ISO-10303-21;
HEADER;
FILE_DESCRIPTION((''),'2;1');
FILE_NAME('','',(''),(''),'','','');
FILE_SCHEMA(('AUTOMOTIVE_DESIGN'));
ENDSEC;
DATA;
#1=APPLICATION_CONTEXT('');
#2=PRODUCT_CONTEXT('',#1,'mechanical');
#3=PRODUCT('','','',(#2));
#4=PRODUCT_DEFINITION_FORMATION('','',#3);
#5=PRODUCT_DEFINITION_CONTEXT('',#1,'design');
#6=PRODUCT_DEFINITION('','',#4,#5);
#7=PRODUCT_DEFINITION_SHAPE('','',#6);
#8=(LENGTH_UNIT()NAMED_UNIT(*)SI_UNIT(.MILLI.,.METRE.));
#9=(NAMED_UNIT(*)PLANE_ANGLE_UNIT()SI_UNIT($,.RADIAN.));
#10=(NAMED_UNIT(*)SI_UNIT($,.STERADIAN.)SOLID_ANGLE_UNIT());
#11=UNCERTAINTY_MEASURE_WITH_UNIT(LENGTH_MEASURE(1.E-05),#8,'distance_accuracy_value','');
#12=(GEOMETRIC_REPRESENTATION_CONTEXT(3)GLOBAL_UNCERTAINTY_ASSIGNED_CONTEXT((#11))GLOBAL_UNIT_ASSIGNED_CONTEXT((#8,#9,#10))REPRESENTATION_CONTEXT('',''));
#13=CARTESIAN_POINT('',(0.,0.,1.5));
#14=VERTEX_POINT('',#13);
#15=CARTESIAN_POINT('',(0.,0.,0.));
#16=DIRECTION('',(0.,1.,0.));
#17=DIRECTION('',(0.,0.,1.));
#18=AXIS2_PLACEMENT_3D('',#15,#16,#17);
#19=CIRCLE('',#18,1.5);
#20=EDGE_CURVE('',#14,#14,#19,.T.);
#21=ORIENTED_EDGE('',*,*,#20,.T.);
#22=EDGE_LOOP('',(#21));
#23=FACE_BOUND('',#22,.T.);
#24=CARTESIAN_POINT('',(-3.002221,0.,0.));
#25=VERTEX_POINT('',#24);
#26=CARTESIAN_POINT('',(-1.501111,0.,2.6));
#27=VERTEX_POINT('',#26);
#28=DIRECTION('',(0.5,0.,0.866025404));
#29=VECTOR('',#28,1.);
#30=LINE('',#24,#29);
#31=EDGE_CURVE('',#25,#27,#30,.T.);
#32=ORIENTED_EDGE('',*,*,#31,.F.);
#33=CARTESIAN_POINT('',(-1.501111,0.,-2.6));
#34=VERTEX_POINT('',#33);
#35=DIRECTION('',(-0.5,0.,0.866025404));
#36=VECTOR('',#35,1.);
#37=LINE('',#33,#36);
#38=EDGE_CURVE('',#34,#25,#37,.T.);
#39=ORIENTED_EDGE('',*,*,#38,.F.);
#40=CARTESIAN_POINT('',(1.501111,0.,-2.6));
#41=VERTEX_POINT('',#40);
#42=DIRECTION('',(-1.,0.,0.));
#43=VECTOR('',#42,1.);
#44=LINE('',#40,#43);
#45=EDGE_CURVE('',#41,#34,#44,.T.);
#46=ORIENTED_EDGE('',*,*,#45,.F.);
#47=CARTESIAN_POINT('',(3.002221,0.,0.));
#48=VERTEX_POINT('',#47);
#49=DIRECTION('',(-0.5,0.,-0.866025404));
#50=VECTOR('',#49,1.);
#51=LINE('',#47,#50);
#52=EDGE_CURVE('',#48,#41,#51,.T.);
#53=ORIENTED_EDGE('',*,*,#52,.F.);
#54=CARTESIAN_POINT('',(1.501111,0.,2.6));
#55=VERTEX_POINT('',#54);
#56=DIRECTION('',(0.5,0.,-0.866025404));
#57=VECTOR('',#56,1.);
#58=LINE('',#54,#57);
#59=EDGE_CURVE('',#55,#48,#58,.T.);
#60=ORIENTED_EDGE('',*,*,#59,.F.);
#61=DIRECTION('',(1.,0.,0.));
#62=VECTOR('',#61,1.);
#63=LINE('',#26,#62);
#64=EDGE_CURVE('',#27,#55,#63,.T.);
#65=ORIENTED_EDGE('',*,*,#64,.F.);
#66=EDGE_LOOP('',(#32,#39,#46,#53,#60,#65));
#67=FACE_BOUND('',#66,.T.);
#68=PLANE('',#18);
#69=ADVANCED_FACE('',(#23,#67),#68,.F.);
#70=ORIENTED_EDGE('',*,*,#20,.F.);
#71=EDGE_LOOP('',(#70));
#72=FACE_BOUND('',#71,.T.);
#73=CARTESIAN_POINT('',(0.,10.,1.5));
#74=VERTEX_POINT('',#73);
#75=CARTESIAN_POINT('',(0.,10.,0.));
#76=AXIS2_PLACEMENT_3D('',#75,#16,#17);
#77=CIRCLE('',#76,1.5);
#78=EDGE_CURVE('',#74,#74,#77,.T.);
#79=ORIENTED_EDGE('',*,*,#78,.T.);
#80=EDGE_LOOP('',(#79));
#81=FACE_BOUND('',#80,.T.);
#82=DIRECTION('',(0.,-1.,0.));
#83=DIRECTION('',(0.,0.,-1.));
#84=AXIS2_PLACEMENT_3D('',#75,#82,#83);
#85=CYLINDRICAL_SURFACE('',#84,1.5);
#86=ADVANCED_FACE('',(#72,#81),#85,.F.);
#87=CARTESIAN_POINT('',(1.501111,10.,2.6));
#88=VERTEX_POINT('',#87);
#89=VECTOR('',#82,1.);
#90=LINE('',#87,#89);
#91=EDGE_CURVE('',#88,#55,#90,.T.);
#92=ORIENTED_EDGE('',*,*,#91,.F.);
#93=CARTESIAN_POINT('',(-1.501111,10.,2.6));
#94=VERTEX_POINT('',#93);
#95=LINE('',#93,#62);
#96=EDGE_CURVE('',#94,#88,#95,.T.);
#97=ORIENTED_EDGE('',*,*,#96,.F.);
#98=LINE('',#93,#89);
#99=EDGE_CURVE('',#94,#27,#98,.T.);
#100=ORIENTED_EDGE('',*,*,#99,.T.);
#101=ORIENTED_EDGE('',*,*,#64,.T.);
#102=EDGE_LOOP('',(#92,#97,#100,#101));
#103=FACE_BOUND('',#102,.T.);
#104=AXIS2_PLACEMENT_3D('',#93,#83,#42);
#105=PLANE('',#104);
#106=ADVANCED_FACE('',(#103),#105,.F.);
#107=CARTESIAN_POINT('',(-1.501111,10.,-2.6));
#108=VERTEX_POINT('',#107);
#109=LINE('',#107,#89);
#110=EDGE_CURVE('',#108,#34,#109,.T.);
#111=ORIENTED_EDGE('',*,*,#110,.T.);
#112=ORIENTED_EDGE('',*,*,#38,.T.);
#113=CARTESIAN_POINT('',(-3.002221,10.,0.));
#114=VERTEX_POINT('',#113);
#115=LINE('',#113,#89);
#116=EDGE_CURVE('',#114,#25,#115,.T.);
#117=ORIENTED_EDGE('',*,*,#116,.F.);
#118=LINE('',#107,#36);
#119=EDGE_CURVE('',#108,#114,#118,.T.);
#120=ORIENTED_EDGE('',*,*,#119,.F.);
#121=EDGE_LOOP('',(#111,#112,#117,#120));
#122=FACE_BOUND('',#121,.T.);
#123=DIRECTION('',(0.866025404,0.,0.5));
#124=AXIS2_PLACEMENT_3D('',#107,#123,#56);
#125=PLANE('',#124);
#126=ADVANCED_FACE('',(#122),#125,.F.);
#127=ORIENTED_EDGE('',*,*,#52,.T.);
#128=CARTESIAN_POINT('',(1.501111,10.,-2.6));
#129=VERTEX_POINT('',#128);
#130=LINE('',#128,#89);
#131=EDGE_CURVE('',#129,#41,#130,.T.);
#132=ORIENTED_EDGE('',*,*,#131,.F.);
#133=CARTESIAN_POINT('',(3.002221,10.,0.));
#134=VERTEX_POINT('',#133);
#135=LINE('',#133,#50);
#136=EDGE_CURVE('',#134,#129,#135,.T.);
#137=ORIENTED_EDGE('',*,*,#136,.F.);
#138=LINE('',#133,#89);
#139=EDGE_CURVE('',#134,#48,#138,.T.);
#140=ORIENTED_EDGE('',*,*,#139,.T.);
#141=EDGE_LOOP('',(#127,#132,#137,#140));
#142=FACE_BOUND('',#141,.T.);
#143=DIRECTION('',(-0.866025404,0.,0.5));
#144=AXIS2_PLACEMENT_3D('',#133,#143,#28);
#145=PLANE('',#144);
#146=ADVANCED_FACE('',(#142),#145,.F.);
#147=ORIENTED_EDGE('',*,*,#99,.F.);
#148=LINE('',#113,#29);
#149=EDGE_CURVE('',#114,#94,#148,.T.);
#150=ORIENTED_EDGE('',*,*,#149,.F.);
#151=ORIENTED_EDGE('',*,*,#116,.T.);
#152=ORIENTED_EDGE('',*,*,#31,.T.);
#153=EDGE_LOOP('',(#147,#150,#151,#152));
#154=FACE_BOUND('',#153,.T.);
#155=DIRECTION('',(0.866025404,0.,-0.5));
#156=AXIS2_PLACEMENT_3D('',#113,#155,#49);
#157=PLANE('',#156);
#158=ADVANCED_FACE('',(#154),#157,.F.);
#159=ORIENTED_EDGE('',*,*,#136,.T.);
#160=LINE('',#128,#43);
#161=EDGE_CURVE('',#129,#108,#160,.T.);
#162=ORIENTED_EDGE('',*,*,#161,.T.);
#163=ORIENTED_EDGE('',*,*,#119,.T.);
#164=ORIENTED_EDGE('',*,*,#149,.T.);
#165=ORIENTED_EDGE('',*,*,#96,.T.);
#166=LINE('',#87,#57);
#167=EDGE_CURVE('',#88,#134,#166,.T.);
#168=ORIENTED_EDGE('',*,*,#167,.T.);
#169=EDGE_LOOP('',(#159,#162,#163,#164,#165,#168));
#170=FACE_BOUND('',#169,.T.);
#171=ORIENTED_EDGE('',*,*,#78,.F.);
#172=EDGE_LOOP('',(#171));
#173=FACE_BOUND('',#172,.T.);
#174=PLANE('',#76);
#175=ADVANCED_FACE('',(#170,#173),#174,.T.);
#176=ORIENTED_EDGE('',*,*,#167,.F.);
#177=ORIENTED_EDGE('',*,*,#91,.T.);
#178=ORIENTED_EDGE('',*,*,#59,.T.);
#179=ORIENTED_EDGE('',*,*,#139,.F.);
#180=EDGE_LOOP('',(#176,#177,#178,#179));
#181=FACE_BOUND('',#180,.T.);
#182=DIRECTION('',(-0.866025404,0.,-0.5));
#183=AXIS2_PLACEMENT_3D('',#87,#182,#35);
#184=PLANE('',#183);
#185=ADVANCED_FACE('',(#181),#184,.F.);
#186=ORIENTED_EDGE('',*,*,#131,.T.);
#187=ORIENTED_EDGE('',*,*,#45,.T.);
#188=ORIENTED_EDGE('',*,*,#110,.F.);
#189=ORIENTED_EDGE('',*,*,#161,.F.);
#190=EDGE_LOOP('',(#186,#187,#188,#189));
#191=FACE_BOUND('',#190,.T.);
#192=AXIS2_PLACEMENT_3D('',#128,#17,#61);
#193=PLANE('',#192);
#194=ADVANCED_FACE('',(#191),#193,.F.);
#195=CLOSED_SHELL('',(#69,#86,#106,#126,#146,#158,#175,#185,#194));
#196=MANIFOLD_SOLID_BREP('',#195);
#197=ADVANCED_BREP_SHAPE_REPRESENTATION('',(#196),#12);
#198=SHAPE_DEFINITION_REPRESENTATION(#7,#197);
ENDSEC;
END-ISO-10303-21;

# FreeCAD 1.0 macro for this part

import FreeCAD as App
import Part
import Sketcher

V = App.Vector
Q = App.Units.Quantity


def add_polygon(sketch, points):
    """Adds a closed chain of lines whose ends are joined by coincident constraints."""
    first, n = sketch.GeometryCount, len(points)
    for a, b in zip(points, points[1:] + points[:1]):
        sketch.addGeometry(Part.LineSegment(App.Vector(*a, 0), App.Vector(*b, 0)), False)
    for i in range(n):
        sketch.addConstraint(Sketcher.Constraint("Coincident", first + i, 2, first + (i + 1) % n, 1))

doc = App.newDocument("Part")
body = doc.addObject("PartDesign::Body", "Body")

# Sketch on XZ plane
sketch1 = body.newObject("Sketcher::SketchObject", "Sketch")
sketch1.AttachmentSupport = (doc.getObject("XZ_Plane"), [""])
sketch1.MapMode = "FlatFace"
add_polygon(sketch1, [(1.501111, -2.6), (-1.501111, -2.6), (-3.002221, 0), (-1.501111, 2.6), (1.501111, 2.6), (3.002221, 0)])  # lines 0-5
sketch1.addGeometry(Part.Circle(V(0, 0, 0), V(0, 0, 1), 1.5), False)  # 6
sketch1.addConstraint([
    Sketcher.Constraint("Horizontal", 0),
    Sketcher.Constraint("Horizontal", 3),
    Sketcher.Constraint("Coincident", 6, 3, -1, 1),
    Sketcher.Constraint("Symmetric", 0, 2, 3, 2, -1, 1),
    Sketcher.Constraint("Symmetric", 1, 2, 4, 2, -1, 1),
    Sketcher.Constraint("PointOnObject", 1, 2, -1),
    Sketcher.Constraint("Parallel", 2, 5),
    Sketcher.Constraint("Vertical", 0, 2, 2, 2),
    Sketcher.Constraint("Diameter", 6, Q("3 mm")),
    Sketcher.Constraint("Angle", 1, Q("120 deg")),
    Sketcher.Constraint("DistanceY", 0, 2, -1, 1, Q("2.6 mm")),
    Sketcher.Constraint("DistanceX", 0, 2, 0, 1, Q("3.002221 mm")),
])
pad1 = body.newObject("PartDesign::Pad", "Pad")
pad1.Profile = sketch1
pad1.Length = 10
pad1.Reversed = True

doc.recompute()
